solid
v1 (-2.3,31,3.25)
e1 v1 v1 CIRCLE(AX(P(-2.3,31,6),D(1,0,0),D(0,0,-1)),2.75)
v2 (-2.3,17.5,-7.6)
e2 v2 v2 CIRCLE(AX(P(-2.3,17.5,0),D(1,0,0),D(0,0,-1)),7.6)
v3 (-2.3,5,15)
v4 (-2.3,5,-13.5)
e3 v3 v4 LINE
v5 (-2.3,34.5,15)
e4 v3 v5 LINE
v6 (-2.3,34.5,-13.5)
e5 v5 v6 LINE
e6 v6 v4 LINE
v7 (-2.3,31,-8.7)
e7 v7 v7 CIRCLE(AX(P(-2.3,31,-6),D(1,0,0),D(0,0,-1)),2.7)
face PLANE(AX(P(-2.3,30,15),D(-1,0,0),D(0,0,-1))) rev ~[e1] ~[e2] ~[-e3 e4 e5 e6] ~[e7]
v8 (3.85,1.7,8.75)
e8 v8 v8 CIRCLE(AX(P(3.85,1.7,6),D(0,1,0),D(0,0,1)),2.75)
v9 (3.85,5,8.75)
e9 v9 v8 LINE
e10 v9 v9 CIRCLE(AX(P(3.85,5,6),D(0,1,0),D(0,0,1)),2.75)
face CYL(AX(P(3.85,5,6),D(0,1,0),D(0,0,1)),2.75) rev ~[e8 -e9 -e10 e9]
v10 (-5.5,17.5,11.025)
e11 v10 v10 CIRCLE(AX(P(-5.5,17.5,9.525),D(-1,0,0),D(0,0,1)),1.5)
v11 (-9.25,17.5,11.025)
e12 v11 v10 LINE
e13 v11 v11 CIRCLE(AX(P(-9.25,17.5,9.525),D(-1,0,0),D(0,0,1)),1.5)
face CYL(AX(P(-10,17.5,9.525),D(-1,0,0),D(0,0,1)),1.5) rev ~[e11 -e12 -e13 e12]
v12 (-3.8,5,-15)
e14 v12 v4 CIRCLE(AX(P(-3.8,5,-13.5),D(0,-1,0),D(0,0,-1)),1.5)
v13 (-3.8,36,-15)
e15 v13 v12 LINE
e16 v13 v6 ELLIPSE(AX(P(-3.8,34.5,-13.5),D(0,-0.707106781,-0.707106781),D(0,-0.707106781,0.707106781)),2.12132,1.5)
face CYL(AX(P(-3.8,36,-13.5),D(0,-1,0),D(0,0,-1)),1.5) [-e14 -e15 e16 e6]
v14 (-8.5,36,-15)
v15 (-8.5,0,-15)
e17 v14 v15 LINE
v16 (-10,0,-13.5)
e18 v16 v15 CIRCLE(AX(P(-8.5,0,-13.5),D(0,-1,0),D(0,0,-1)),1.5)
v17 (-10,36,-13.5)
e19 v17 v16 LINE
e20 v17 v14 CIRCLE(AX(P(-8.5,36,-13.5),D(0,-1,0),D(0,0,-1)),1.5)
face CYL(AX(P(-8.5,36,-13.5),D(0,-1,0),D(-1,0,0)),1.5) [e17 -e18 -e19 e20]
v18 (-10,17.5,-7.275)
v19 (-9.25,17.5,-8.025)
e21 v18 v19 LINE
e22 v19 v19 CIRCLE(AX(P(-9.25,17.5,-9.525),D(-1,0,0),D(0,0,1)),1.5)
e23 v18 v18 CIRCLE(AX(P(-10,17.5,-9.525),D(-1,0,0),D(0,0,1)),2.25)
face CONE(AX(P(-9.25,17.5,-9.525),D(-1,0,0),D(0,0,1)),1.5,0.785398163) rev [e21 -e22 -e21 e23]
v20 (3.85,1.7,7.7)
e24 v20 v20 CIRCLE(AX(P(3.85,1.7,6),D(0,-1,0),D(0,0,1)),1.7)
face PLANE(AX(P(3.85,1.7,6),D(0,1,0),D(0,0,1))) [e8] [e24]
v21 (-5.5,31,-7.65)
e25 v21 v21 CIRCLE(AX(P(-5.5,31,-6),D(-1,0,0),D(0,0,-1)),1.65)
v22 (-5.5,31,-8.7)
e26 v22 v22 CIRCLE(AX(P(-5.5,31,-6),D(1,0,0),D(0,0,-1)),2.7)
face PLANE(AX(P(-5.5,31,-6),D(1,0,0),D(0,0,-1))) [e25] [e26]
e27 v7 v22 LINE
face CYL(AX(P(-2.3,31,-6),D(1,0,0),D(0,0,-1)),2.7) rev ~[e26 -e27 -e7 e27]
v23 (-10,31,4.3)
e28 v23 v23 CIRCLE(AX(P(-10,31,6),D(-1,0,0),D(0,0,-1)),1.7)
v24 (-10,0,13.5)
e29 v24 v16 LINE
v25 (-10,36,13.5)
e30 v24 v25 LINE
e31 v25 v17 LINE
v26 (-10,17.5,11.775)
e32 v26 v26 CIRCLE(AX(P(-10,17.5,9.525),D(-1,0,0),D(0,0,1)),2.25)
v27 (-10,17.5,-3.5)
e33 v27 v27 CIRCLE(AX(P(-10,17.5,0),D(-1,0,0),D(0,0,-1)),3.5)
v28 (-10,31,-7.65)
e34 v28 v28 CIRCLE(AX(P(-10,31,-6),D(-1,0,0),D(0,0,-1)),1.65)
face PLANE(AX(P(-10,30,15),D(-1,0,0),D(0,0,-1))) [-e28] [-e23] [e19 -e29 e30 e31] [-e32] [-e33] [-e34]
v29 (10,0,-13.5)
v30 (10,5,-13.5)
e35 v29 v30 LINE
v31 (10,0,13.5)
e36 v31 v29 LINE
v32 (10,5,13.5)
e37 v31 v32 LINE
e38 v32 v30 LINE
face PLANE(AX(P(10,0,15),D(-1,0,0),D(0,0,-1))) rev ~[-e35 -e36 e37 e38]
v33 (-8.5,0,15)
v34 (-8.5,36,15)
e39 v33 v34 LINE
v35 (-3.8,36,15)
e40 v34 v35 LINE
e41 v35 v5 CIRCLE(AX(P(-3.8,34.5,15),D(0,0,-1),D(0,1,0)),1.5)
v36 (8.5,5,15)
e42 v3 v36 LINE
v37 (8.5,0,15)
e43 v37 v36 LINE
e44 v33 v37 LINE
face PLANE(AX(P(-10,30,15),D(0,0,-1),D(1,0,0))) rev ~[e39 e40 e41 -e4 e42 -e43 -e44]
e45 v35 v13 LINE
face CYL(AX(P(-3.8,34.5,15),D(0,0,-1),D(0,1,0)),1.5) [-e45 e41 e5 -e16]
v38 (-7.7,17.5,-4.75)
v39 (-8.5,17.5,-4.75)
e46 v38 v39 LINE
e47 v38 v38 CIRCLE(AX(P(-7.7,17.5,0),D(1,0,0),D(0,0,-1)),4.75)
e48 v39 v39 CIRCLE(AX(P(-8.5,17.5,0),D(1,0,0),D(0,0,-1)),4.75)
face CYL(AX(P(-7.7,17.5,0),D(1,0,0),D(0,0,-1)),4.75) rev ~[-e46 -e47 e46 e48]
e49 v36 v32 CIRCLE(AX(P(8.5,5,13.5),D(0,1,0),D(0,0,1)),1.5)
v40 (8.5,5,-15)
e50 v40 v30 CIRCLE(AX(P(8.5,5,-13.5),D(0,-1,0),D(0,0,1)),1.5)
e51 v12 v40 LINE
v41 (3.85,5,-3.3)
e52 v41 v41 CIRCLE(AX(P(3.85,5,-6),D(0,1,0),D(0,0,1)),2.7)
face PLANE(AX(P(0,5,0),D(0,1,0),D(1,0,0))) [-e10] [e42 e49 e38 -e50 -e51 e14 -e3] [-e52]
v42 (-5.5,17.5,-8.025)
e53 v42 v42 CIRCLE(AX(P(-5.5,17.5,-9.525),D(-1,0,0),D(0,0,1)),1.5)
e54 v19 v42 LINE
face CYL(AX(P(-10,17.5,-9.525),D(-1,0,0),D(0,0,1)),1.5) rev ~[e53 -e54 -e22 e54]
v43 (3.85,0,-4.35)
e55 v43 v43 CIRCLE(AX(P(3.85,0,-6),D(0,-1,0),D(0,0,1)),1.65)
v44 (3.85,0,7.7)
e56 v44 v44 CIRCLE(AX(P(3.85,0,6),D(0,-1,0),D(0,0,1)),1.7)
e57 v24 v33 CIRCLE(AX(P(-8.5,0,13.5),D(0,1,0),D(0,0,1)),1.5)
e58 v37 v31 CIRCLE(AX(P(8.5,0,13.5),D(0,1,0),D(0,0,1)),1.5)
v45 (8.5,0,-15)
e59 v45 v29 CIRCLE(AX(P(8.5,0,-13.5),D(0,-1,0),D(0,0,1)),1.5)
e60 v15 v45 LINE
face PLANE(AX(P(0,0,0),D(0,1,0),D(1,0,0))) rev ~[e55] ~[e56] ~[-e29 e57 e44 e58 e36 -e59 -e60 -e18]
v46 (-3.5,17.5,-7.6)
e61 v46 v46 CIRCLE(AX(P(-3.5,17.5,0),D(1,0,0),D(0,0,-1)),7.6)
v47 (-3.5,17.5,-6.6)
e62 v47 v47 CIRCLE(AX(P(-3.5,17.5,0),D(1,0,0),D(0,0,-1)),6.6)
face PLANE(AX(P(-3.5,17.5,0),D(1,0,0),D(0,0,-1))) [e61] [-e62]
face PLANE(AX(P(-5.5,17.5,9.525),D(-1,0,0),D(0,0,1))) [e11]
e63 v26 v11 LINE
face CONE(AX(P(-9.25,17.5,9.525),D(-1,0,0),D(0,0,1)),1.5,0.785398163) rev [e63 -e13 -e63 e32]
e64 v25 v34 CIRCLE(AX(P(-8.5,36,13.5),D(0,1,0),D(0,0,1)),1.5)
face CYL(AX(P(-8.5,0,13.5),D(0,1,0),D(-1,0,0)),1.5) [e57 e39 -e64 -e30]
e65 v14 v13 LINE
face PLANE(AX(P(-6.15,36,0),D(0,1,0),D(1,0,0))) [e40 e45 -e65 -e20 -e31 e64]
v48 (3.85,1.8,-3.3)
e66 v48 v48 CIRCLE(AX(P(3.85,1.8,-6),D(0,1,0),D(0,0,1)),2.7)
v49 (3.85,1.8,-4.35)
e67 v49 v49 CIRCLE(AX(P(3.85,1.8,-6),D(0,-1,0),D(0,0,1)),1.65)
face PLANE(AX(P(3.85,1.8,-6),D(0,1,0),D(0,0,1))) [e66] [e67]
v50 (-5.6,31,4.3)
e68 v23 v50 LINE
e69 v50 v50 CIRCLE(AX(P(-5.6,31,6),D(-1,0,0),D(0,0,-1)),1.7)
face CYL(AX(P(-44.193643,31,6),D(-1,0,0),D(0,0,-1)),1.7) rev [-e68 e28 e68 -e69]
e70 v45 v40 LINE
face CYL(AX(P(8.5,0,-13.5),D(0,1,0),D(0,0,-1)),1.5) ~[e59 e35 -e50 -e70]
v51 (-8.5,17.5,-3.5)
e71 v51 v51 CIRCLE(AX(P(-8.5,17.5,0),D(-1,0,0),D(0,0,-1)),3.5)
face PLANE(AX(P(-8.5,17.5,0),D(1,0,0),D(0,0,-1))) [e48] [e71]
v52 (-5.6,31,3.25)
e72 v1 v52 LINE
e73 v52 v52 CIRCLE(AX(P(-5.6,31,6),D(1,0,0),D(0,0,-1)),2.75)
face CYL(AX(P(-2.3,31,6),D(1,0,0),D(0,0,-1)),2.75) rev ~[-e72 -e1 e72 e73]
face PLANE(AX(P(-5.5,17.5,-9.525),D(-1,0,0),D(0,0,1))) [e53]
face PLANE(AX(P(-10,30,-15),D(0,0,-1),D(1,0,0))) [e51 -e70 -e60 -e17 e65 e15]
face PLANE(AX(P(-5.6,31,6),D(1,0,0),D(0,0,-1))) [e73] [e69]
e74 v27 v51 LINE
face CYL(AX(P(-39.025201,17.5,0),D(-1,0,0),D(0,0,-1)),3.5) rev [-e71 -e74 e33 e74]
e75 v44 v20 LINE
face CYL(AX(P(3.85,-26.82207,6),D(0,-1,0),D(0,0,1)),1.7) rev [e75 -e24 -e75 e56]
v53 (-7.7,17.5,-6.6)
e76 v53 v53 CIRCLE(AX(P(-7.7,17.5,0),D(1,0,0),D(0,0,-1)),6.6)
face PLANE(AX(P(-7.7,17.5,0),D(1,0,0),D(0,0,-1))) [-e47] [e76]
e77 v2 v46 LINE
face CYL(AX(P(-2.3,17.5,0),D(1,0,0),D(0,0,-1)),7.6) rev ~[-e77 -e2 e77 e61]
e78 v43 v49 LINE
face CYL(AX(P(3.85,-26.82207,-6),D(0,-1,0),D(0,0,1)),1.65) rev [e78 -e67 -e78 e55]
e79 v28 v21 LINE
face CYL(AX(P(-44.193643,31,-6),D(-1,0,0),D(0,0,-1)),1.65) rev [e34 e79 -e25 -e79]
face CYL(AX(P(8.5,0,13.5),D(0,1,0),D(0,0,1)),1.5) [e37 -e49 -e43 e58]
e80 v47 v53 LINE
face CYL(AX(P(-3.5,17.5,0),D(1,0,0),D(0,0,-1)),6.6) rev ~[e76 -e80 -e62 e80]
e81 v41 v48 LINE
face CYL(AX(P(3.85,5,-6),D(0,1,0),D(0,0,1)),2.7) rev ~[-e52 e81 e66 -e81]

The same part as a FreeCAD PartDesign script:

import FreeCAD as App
import Part
import Sketcher
from FreeCAD import Vector
Q = App.Units.Quantity


def edges_at(feature, points):
    """Names of the edges that pass closest to the given points."""
    edges = feature.Shape.Edges
    near = lambda p: min(range(len(edges)), key=lambda i: edges[i].distToShape(Part.Vertex(*p))[0])
    return sorted({f"Edge{near(p) + 1}" for p in points})


def add_polygon(sketch, points):
    """Adds a closed chain of lines whose ends are joined by coincident constraints."""
    first, n = sketch.GeometryCount, len(points)
    for a, b in zip(points, points[1:] + points[:1]):
        sketch.addGeometry(Part.LineSegment(App.Vector(*a, 0), App.Vector(*b, 0)), False)
    for i in range(n):
        sketch.addConstraint(Sketcher.Constraint("Coincident", first + i, 2, first + (i + 1) % n, 1))

doc = App.newDocument("Part")
params = doc.addObject("Spreadsheet::Sheet", "Params")
for row, (alias, value) in enumerate([
    ("sketch1_width", "20 mm"),
    ("sketch1_height", "30 mm"),
    ("pad1_length", "5 mm"),
    ("sketch2_height", "30 mm"),
    ("sketch2_width", "7.7 mm"),
    ("pad2_length", "25 mm"),
    ("sketch3_diameter", "7 mm"),
    ("sketch4_diameter", "15.2 mm"),
    ("pocket2_length", "1.2 mm"),
    ("sketch5_diameter", "13.2 mm"),
    ("pocket3_length", "4.2 mm"),
    ("sketch6_diameter", "9.5 mm"),
    ("pocket4_length", "0.8 mm"),
    ("sketch7_diameter", "3.3 mm"),
    ("sketch7_diameter2", "3.4 mm"),
    ("sketch8_diameter", "5.4 mm"),
    ("pocket6_length", "3.2 mm"),
    ("sketch9_diameter", "5.5 mm"),
    ("pocket7_length", "3.3 mm"),
    ("sketch10_height", "30 mm"),
    ("sketch10_width", "7.7 mm"),
    ("pad3_length", "6 mm"),
    ("sketch11_diameter", "3.4 mm"),
    ("sketch11_diameter2", "3.3 mm"),
    ("sketch12_diameter", "5.4 mm"),
    ("pocket9_length", "3.2 mm"),
    ("sketch13_diameter", "5.5 mm"),
    ("pocket10_length", "3.3 mm"),
    ("sketch14_diameter", "3 mm"),
    ("pocket11_length", "4.5 mm"),
    ("chamfer_size", "0.75 mm"),
    ("fillet_radius", "1.5 mm"),
], start=1):
    params.set(f"A{row}", alias)
    params.set(f"B{row}", "=" + value)
    params.setAlias(f"B{row}", alias)

body = doc.addObject("PartDesign::Body", "Body")

sketch1 = doc.addObject("Sketcher::SketchObject", "Sketch")
body.addObject(sketch1)
sketch1.AttachmentSupport = (doc.XZ_Plane, [""])
sketch1.MapMode = "FlatFace"
add_polygon(sketch1, [(-10, -15), (-10, 15), (10, 15), (10, -15)])
sketch1.addConstraint([
    Sketcher.Constraint("Vertical", 0),
    Sketcher.Constraint("Horizontal", 1),
    Sketcher.Constraint("Vertical", 2),
    Sketcher.Constraint("Horizontal", 3),
    Sketcher.Constraint("Symmetric", 0, 2, 2, 2, -1, 1),
    Sketcher.Constraint("DistanceX", 1, 1, 1, 2, Q("20 mm")),
    Sketcher.Constraint("DistanceY", 0, 1, 0, 2, Q("30 mm")),
])
sketch1.setExpression("Constraints[9]", "Params.sketch1_width")
sketch1.setExpression("Constraints[10]", "Params.sketch1_height")
pad1 = doc.addObject("PartDesign::Pad", "Pad")
body.addObject(pad1)
pad1.Profile = sketch1
pad1.setExpression("Length", "Params.pad1_length")
pad1.Reversed = True

sketch2 = doc.addObject("Sketcher::SketchObject", "Sketch001")
body.addObject(sketch2)
sketch2.AttachmentSupport = (doc.XZ_Plane, [""])
sketch2.MapMode = "FlatFace"
sketch2.AttachmentOffset = App.Placement(Vector(0, 0, -5), App.Rotation())
add_polygon(sketch2, [(-10, -15), (-10, 15), (-2.3, 15), (-2.3, -15)])
sketch2.addConstraint([
    Sketcher.Constraint("Vertical", 0),
    Sketcher.Constraint("Horizontal", 1),
    Sketcher.Constraint("Vertical", 2),
    Sketcher.Constraint("Horizontal", 3),
    Sketcher.Constraint("DistanceY", 0, 1, 0, 2, Q("30 mm")),
    Sketcher.Constraint("DistanceX", 1, 1, 1, 2, Q("7.7 mm")),
    Sketcher.Constraint("DistanceX", 0, 2, -1, 1, Q("10 mm")),
    Sketcher.Constraint("DistanceY", -1, 1, 0, 2, Q("15 mm")),
])
sketch2.setExpression("Constraints[8]", "Params.sketch2_height")
sketch2.setExpression("Constraints[9]", "Params.sketch2_width")
pad2 = doc.addObject("PartDesign::Pad", "Pad001")
body.addObject(pad2)
pad2.Profile = sketch2
pad2.setExpression("Length", "Params.pad2_length")
pad2.Reversed = True

sketch3 = doc.addObject("Sketcher::SketchObject", "Sketch002")
body.addObject(sketch3)
sketch3.AttachmentSupport = (doc.YZ_Plane, [""])
sketch3.MapMode = "FlatFace"
sketch3.AttachmentOffset = App.Placement(Vector(0, 0, -2.3), App.Rotation())
sketch3.addGeometry(Part.Circle(Vector(17.5, 0, 0), Vector(0, 0, 1), 3.5), False)
sketch3.addConstraint([
    Sketcher.Constraint("PointOnObject", 0, 3, -1),
    Sketcher.Constraint("Diameter", 0, Q("7 mm")),
    Sketcher.Constraint("DistanceX", -1, 1, 0, 3, Q("17.5 mm")),
])
sketch3.setExpression("Constraints[1]", "Params.sketch3_diameter")
pocket1 = doc.addObject("PartDesign::Pocket", "Pocket")
body.addObject(pocket1)
pocket1.Profile = sketch3
pocket1.Type = "ThroughAll"
pocket1.Midplane = True

sketch4 = doc.addObject("Sketcher::SketchObject", "Sketch003")
body.addObject(sketch4)
sketch4.AttachmentSupport = (doc.YZ_Plane, [""])
sketch4.MapMode = "FlatFace"
sketch4.AttachmentOffset = App.Placement(Vector(0, 0, -2.3), App.Rotation())
sketch4.addGeometry(Part.Circle(Vector(17.5, 0, 0), Vector(0, 0, 1), 7.6), False)
sketch4.addConstraint([
    Sketcher.Constraint("PointOnObject", 0, 3, -1),
    Sketcher.Constraint("Diameter", 0, Q("15.2 mm")),
    Sketcher.Constraint("DistanceX", -1, 1, 0, 3, Q("17.5 mm")),
])
sketch4.setExpression("Constraints[1]", "Params.sketch4_diameter")
pocket2 = doc.addObject("PartDesign::Pocket", "Pocket001")
body.addObject(pocket2)
pocket2.Profile = sketch4
pocket2.setExpression("Length", "Params.pocket2_length")

sketch5 = doc.addObject("Sketcher::SketchObject", "Sketch004")
body.addObject(sketch5)
sketch5.AttachmentSupport = (doc.YZ_Plane, [""])
sketch5.MapMode = "FlatFace"
sketch5.AttachmentOffset = App.Placement(Vector(0, 0, -3.5), App.Rotation())
sketch5.addGeometry(Part.Circle(Vector(17.5, 0, 0), Vector(0, 0, 1), 6.6), False)
sketch5.addConstraint([
    Sketcher.Constraint("PointOnObject", 0, 3, -1),
    Sketcher.Constraint("Diameter", 0, Q("13.2 mm")),
    Sketcher.Constraint("DistanceX", -1, 1, 0, 3, Q("17.5 mm")),
])
sketch5.setExpression("Constraints[1]", "Params.sketch5_diameter")
pocket3 = doc.addObject("PartDesign::Pocket", "Pocket002")
body.addObject(pocket3)
pocket3.Profile = sketch5
pocket3.setExpression("Length", "Params.pocket3_length")

sketch6 = doc.addObject("Sketcher::SketchObject", "Sketch005")
body.addObject(sketch6)
sketch6.AttachmentSupport = (doc.YZ_Plane, [""])
sketch6.MapMode = "FlatFace"
sketch6.AttachmentOffset = App.Placement(Vector(0, 0, -7.7), App.Rotation())
sketch6.addGeometry(Part.Circle(Vector(17.5, 0, 0), Vector(0, 0, 1), 4.75), False)
sketch6.addConstraint([
    Sketcher.Constraint("PointOnObject", 0, 3, -1),
    Sketcher.Constraint("Diameter", 0, Q("9.5 mm")),
    Sketcher.Constraint("DistanceX", -1, 1, 0, 3, Q("17.5 mm")),
])
sketch6.setExpression("Constraints[1]", "Params.sketch6_diameter")
pocket4 = doc.addObject("PartDesign::Pocket", "Pocket003")
body.addObject(pocket4)
pocket4.Profile = sketch6
pocket4.setExpression("Length", "Params.pocket4_length")

sketch7 = doc.addObject("Sketcher::SketchObject", "Sketch006")
body.addObject(sketch7)
sketch7.AttachmentSupport = (doc.XZ_Plane, [""])
sketch7.MapMode = "FlatFace"
sketch7.AttachmentOffset = App.Placement(Vector(0, 0, -5), App.Rotation())
sketch7.addGeometry([
    Part.Circle(Vector(3.85, -6, 0), Vector(0, 0, 1), 1.65),
    Part.Circle(Vector(3.85, 6, 0), Vector(0, 0, 1), 1.7),
], False)
sketch7.addConstraint([
    Sketcher.Constraint("Symmetric", 0, 3, 1, 3, -1),
    Sketcher.Constraint("Diameter", 0, Q("3.3 mm")),
    Sketcher.Constraint("Diameter", 1, Q("3.4 mm")),
    Sketcher.Constraint("DistanceY", 0, 3, -1, 1, Q("6 mm")),
    Sketcher.Constraint("DistanceX", -1, 1, 0, 3, Q("3.85 mm")),
])
sketch7.setExpression("Constraints[1]", "Params.sketch7_diameter")
sketch7.setExpression("Constraints[2]", "Params.sketch7_diameter2")
pocket5 = doc.addObject("PartDesign::Pocket", "Pocket004")
body.addObject(pocket5)
pocket5.Profile = sketch7
pocket5.Type = "ThroughAll"
pocket5.Midplane = True

sketch8 = doc.addObject("Sketcher::SketchObject", "Sketch007")
body.addObject(sketch8)
sketch8.AttachmentSupport = (doc.XZ_Plane, [""])
sketch8.MapMode = "FlatFace"
sketch8.AttachmentOffset = App.Placement(Vector(0, 0, -5), App.Rotation())
sketch8.addGeometry(Part.Circle(Vector(3.85, -6, 0), Vector(0, 0, 1), 2.7), False)
sketch8.addConstraint([
    Sketcher.Constraint("Diameter", 0, Q("5.4 mm")),
    Sketcher.Constraint("DistanceY", 0, 3, -1, 1, Q("6 mm")),
    Sketcher.Constraint("DistanceX", -1, 1, 0, 3, Q("3.85 mm")),
])
sketch8.setExpression("Constraints[0]", "Params.sketch8_diameter")
pocket6 = doc.addObject("PartDesign::Pocket", "Pocket005")
body.addObject(pocket6)
pocket6.Profile = sketch8
pocket6.setExpression("Length", "Params.pocket6_length")
pocket6.Reversed = True

sketch9 = doc.addObject("Sketcher::SketchObject", "Sketch008")
body.addObject(sketch9)
sketch9.AttachmentSupport = (doc.XZ_Plane, [""])
sketch9.MapMode = "FlatFace"
sketch9.AttachmentOffset = App.Placement(Vector(0, 0, -5), App.Rotation())
sketch9.addGeometry(Part.Circle(Vector(3.85, 6, 0), Vector(0, 0, 1), 2.75), False)
sketch9.addConstraint([
    Sketcher.Constraint("Diameter", 0, Q("5.5 mm")),
    Sketcher.Constraint("DistanceY", -1, 1, 0, 3, Q("6 mm")),
    Sketcher.Constraint("DistanceX", -1, 1, 0, 3, Q("3.85 mm")),
])
sketch9.setExpression("Constraints[0]", "Params.sketch9_diameter")
pocket7 = doc.addObject("PartDesign::Pocket", "Pocket006")
body.addObject(pocket7)
pocket7.Profile = sketch9
pocket7.setExpression("Length", "Params.pocket7_length")
pocket7.Reversed = True

sketch10 = doc.addObject("Sketcher::SketchObject", "Sketch009")
body.addObject(sketch10)
sketch10.AttachmentSupport = (doc.XZ_Plane, [""])
sketch10.MapMode = "FlatFace"
sketch10.AttachmentOffset = App.Placement(Vector(0, 0, -30), App.Rotation())
add_polygon(sketch10, [(-10, -15), (-10, 15), (-2.3, 15), (-2.3, -15)])
sketch10.addConstraint([
    Sketcher.Constraint("Vertical", 0),
    Sketcher.Constraint("Horizontal", 1),
    Sketcher.Constraint("Vertical", 2),
    Sketcher.Constraint("Horizontal", 3),
    Sketcher.Constraint("DistanceY", 0, 1, 0, 2, Q("30 mm")),
    Sketcher.Constraint("DistanceX", 1, 1, 1, 2, Q("7.7 mm")),
    Sketcher.Constraint("DistanceX", 0, 2, -1, 1, Q("10 mm")),
    Sketcher.Constraint("DistanceY", -1, 1, 0, 2, Q("15 mm")),
])
sketch10.setExpression("Constraints[8]", "Params.sketch10_height")
sketch10.setExpression("Constraints[9]", "Params.sketch10_width")
pad3 = doc.addObject("PartDesign::Pad", "Pad002")
body.addObject(pad3)
pad3.Profile = sketch10
pad3.setExpression("Length", "Params.pad3_length")
pad3.Reversed = True

sketch11 = doc.addObject("Sketcher::SketchObject", "Sketch010")
body.addObject(sketch11)
sketch11.AttachmentSupport = (doc.YZ_Plane, [""])
sketch11.MapMode = "FlatFace"
sketch11.AttachmentOffset = App.Placement(Vector(0, 0, -2.3), App.Rotation())
sketch11.addGeometry([
    Part.Circle(Vector(31, 6, 0), Vector(0, 0, 1), 1.7),
    Part.Circle(Vector(31, -6, 0), Vector(0, 0, 1), 1.65),
], False)
sketch11.addConstraint([
    Sketcher.Constraint("Symmetric", 0, 3, 1, 3, -1),
    Sketcher.Constraint("Diameter", 0, Q("3.4 mm")),
    Sketcher.Constraint("Diameter", 1, Q("3.3 mm")),
    Sketcher.Constraint("DistanceX", -1, 1, 0, 3, Q("31 mm")),
    Sketcher.Constraint("DistanceY", -1, 1, 0, 3, Q("6 mm")),
])
sketch11.setExpression("Constraints[1]", "Params.sketch11_diameter")
sketch11.setExpression("Constraints[2]", "Params.sketch11_diameter2")
pocket8 = doc.addObject("PartDesign::Pocket", "Pocket007")
body.addObject(pocket8)
pocket8.Profile = sketch11
pocket8.Type = "ThroughAll"
pocket8.Midplane = True

sketch12 = doc.addObject("Sketcher::SketchObject", "Sketch011")
body.addObject(sketch12)
sketch12.AttachmentSupport = (doc.YZ_Plane, [""])
sketch12.MapMode = "FlatFace"
sketch12.AttachmentOffset = App.Placement(Vector(0, 0, -2.3), App.Rotation())
sketch12.addGeometry(Part.Circle(Vector(31, -6, 0), Vector(0, 0, 1), 2.7), False)
sketch12.addConstraint([
    Sketcher.Constraint("Diameter", 0, Q("5.4 mm")),
    Sketcher.Constraint("DistanceX", -1, 1, 0, 3, Q("31 mm")),
    Sketcher.Constraint("DistanceY", 0, 3, -1, 1, Q("6 mm")),
])
sketch12.setExpression("Constraints[0]", "Params.sketch12_diameter")
pocket9 = doc.addObject("PartDesign::Pocket", "Pocket008")
body.addObject(pocket9)
pocket9.Profile = sketch12
pocket9.setExpression("Length", "Params.pocket9_length")

sketch13 = doc.addObject("Sketcher::SketchObject", "Sketch012")
body.addObject(sketch13)
sketch13.AttachmentSupport = (doc.YZ_Plane, [""])
sketch13.MapMode = "FlatFace"
sketch13.AttachmentOffset = App.Placement(Vector(0, 0, -2.3), App.Rotation())
sketch13.addGeometry(Part.Circle(Vector(31, 6, 0), Vector(0, 0, 1), 2.75), False)
sketch13.addConstraint([
    Sketcher.Constraint("Diameter", 0, Q("5.5 mm")),
    Sketcher.Constraint("DistanceX", -1, 1, 0, 3, Q("31 mm")),
    Sketcher.Constraint("DistanceY", -1, 1, 0, 3, Q("6 mm")),
])
sketch13.setExpression("Constraints[0]", "Params.sketch13_diameter")
pocket10 = doc.addObject("PartDesign::Pocket", "Pocket009")
body.addObject(pocket10)
pocket10.Profile = sketch13
pocket10.setExpression("Length", "Params.pocket10_length")

sketch14 = doc.addObject("Sketcher::SketchObject", "Sketch013")
body.addObject(sketch14)
sketch14.AttachmentSupport = (doc.YZ_Plane, [""])
sketch14.MapMode = "FlatFace"
sketch14.AttachmentOffset = App.Placement(Vector(0, 0, -10), App.Rotation())
sketch14.addGeometry([
    Part.Circle(Vector(17.5, -9.525, 0), Vector(0, 0, 1), 1.5),
    Part.Circle(Vector(17.5, 9.525, 0), Vector(0, 0, 1), 1.5),
], False)
sketch14.addConstraint([
    Sketcher.Constraint("Equal", 0, 1),
    Sketcher.Constraint("Symmetric", 0, 3, 1, 3, -1),
    Sketcher.Constraint("Diameter", 0, Q("3 mm")),
    Sketcher.Constraint("DistanceX", -1, 1, 0, 3, Q("17.5 mm")),
    Sketcher.Constraint("DistanceY", 0, 3, 1, 3, Q("19.05 mm")),
])
sketch14.setExpression("Constraints[2]", "Params.sketch14_diameter")
pocket11 = doc.addObject("PartDesign::Pocket", "Pocket010")
body.addObject(pocket11)
pocket11.Profile = sketch14
pocket11.setExpression("Length", "Params.pocket11_length")
pocket11.Reversed = True
doc.recompute()

chamfer = doc.addObject("PartDesign::Chamfer", "Chamfer")
body.addObject(chamfer)
chamfer.Base = (pocket11, edges_at(pocket11, [(-10, 17.5, -11.025), (-10, 17.5, 8.025)]))
chamfer.setExpression("Size", "Params.chamfer_size")
doc.recompute()

fillet = doc.addObject("PartDesign::Fillet", "Fillet")
body.addObject(fillet)
fillet.Base = (chamfer, edges_at(chamfer, [
    (-2.3, 20.5, -15),
    (10, 2.5, 15),
    (-10, 18, 15),
    (-10, 18, -15),
    (-2.3, 36, 0),
    (10, 2.5, -15),
]))
fillet.setExpression("Radius", "Params.fillet_radius")

doc.recompute()
